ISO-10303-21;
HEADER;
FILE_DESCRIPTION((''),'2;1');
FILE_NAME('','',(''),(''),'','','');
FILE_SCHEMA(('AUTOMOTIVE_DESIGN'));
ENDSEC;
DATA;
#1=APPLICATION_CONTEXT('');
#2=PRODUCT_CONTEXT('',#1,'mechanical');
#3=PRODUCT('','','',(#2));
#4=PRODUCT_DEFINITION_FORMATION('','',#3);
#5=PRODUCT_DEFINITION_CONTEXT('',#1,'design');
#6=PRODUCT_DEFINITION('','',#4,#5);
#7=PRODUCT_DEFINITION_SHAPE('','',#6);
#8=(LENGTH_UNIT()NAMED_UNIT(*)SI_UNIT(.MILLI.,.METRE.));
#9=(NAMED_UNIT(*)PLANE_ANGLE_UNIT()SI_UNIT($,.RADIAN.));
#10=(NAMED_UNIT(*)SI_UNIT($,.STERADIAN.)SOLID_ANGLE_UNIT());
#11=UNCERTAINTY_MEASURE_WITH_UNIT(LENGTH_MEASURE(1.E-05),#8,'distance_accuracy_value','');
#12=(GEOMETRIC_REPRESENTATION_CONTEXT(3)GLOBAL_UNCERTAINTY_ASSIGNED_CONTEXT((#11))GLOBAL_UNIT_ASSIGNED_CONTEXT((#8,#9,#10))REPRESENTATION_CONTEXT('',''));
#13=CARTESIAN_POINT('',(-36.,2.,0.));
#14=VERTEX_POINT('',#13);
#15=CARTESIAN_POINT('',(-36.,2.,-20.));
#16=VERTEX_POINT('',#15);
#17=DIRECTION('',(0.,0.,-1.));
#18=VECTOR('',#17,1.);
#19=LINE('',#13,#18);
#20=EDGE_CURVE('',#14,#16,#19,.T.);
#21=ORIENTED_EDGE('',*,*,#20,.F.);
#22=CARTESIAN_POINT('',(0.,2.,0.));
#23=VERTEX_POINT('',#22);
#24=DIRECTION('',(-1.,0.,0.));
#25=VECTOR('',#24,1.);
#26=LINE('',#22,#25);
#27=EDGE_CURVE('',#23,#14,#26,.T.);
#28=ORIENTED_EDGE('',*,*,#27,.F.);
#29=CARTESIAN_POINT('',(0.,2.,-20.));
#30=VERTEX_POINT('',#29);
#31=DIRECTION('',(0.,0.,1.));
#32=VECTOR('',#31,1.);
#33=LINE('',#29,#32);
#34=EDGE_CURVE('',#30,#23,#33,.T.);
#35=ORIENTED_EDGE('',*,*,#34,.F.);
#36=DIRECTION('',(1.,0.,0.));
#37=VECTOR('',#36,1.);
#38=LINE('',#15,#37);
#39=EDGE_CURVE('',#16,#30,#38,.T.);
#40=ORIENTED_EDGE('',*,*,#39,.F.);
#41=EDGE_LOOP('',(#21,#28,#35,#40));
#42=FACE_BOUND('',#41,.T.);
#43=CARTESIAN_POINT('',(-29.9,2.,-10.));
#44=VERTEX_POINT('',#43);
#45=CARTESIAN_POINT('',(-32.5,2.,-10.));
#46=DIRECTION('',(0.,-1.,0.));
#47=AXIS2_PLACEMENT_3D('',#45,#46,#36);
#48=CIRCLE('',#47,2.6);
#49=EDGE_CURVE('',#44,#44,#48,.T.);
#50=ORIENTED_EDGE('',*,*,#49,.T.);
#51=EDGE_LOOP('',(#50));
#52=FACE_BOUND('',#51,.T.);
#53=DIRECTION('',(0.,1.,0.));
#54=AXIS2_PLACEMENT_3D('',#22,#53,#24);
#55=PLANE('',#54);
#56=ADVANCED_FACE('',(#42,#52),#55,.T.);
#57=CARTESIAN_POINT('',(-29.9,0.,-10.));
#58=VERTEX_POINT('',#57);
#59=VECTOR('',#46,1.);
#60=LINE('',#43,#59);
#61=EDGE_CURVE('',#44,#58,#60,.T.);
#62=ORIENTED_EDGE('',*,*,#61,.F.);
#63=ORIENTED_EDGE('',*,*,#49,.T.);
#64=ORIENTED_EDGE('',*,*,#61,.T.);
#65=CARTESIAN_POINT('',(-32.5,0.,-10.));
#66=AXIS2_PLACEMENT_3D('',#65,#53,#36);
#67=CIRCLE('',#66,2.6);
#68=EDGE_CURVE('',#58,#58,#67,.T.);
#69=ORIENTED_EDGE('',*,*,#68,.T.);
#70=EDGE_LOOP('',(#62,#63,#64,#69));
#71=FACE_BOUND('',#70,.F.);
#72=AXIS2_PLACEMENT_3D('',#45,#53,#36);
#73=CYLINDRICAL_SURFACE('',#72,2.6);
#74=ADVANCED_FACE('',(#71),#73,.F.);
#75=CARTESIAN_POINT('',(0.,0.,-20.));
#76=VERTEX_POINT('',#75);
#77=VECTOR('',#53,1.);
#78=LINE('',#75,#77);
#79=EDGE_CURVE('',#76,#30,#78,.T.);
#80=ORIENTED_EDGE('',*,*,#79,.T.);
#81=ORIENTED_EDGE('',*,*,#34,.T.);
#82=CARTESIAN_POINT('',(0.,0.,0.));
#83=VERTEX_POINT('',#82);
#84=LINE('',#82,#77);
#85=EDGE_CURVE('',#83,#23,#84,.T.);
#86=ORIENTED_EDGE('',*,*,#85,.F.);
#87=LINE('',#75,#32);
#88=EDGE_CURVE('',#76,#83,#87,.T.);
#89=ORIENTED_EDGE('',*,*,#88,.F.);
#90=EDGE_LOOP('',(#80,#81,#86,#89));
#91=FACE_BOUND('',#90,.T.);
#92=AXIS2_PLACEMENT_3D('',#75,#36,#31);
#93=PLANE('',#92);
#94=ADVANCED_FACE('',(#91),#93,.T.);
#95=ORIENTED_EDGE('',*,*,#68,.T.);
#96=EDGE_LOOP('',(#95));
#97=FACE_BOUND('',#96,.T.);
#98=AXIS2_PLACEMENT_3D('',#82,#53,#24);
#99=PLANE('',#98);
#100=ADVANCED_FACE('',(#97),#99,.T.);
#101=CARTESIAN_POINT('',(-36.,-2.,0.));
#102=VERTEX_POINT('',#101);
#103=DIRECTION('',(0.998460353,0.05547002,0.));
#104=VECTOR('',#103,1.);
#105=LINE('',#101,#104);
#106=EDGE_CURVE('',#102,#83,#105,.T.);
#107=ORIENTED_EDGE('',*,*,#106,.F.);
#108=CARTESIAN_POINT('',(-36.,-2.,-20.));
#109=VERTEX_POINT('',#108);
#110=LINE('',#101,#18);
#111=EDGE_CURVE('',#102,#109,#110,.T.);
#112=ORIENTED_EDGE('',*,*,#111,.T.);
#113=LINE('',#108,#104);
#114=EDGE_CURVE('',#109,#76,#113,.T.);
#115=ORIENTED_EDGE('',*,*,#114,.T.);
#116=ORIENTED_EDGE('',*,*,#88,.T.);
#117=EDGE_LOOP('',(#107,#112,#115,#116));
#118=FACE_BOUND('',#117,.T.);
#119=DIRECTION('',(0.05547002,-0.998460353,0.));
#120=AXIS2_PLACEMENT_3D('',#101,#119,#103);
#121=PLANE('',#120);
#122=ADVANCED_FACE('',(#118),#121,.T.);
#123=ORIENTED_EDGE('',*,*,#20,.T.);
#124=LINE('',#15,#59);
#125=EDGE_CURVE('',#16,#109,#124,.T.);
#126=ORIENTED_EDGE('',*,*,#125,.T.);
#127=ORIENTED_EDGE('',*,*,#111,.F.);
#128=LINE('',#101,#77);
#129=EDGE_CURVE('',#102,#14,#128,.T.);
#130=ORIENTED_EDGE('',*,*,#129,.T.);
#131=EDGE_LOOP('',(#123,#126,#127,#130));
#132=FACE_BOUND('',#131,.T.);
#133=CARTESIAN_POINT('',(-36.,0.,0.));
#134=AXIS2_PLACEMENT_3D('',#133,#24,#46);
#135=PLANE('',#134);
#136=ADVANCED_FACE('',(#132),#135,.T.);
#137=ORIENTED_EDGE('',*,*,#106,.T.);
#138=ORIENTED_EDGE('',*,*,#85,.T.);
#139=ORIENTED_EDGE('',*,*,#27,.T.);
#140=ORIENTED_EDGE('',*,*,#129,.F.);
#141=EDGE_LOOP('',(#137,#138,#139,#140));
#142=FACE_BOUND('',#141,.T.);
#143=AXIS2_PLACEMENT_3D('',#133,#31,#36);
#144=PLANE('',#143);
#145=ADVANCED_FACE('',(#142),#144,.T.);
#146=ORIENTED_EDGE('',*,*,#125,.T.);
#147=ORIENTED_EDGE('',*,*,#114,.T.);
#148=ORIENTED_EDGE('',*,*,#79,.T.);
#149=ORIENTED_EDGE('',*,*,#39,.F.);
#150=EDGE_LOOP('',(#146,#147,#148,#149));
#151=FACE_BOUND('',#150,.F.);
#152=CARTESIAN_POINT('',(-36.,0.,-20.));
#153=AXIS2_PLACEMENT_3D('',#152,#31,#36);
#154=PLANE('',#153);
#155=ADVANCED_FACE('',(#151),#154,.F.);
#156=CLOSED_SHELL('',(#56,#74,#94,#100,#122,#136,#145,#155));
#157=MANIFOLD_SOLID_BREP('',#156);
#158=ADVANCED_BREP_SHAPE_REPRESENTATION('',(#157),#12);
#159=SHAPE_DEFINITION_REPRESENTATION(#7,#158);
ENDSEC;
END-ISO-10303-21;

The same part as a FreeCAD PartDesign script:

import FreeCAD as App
import Part
import Sketcher

V = App.Vector
Q = App.Units.Quantity

doc = App.newDocument("Part")
body = doc.addObject("PartDesign::Body", "Body")

# Sketch on XZ plane
sketch1 = body.newObject("Sketcher::SketchObject", "Sketch")
sketch1.AttachmentSupport = (doc.getObject("XZ_Plane"), [""])
sketch1.MapMode = "FlatFace"
sketch1.addGeometry([
    Part.LineSegment(V(-36, 0, 0), V(0, 0, 0)),
    Part.LineSegment(V(0, 0, 0), V(0, -20, 0)),
    Part.LineSegment(V(0, -20, 0), V(-36, -20, 0)),
    Part.LineSegment(V(-36, -20, 0), V(-36, 0, 0)),
], False)
sketch1.addConstraint([
    Sketcher.Constraint("Coincident", 0, 2, 1, 1),
    Sketcher.Constraint("Coincident", 1, 2, 2, 1),
    Sketcher.Constraint("Coincident", 2, 2, 3, 1),
    Sketcher.Constraint("Coincident", 3, 2, 0, 1),
    Sketcher.Constraint("Horizontal", 0),
    Sketcher.Constraint("Vertical", 1),
    Sketcher.Constraint("Horizontal", 2),
    Sketcher.Constraint("Vertical", 3),
    Sketcher.Constraint("Coincident", 0, 2, -1, 1),
    Sketcher.Constraint("DistanceX", 0, 1, 0, 2, Q("36 mm")),
    Sketcher.Constraint("DistanceY", 1, 2, 1, 1, Q("20 mm")),
])
pad1 = body.newObject("PartDesign::Pad", "Pad")
pad1.Profile = sketch1
pad1.Length = 2
pad1.Reversed = True

# Sketch on XZ plane
sketch2 = body.newObject("Sketcher::SketchObject", "Sketch001")
sketch2.AttachmentSupport = (doc.getObject("XZ_Plane"), [""])
sketch2.MapMode = "FlatFace"
sketch2.AttachmentOffset = App.Placement(V(0, 0, -2), App.Rotation())
sketch2.addGeometry(Part.Circle(V(-32.5, -10, 0), V(0, 0, 1), 2.6), False)
sketch2.addConstraint([
    Sketcher.Constraint("Diameter", 0, Q("5.2 mm")),
    Sketcher.Constraint("DistanceY", 0, 3, -1, 1, Q("10 mm")),
    Sketcher.Constraint("DistanceX", 0, 3, -1, 1, Q("32.5 mm")),
])
pocket1 = body.newObject("PartDesign::Pocket", "Pocket")
pocket1.Profile = sketch2
pocket1.Length = 2
pocket1.Reversed = True

# Sketch on XY plane
sketch3 = body.newObject("Sketcher::SketchObject", "Sketch002")
sketch3.AttachmentSupport = (doc.getObject("XY_Plane"), [""])
sketch3.MapMode = "FlatFace"
sketch3.addGeometry([
    Part.LineSegment(V(-36, -2, 0), V(0, 0, 0)),
    Part.LineSegment(V(0, 0, 0), V(-36, 0, 0)),
    Part.LineSegment(V(-36, 0, 0), V(-36, -2, 0)),
], False)
sketch3.addConstraint([
    Sketcher.Constraint("Coincident", 0, 2, 1, 1),
    Sketcher.Constraint("Coincident", 1, 2, 2, 1),
    Sketcher.Constraint("Coincident", 2, 2, 0, 1),
    Sketcher.Constraint("Horizontal", 1),
    Sketcher.Constraint("Vertical", 2),
    Sketcher.Constraint("Coincident", 0, 2, -1, 1),
    Sketcher.Constraint("DistanceY", 2, 2, 2, 1, Q("2 mm")),
    Sketcher.Constraint("DistanceX", 1, 2, 1, 1, Q("36 mm")),
])
pad2 = body.newObject("PartDesign::Pad", "Pad001")
pad2.Profile = sketch3
pad2.Length = 20
pad2.Reversed = True

doc.recompute()
